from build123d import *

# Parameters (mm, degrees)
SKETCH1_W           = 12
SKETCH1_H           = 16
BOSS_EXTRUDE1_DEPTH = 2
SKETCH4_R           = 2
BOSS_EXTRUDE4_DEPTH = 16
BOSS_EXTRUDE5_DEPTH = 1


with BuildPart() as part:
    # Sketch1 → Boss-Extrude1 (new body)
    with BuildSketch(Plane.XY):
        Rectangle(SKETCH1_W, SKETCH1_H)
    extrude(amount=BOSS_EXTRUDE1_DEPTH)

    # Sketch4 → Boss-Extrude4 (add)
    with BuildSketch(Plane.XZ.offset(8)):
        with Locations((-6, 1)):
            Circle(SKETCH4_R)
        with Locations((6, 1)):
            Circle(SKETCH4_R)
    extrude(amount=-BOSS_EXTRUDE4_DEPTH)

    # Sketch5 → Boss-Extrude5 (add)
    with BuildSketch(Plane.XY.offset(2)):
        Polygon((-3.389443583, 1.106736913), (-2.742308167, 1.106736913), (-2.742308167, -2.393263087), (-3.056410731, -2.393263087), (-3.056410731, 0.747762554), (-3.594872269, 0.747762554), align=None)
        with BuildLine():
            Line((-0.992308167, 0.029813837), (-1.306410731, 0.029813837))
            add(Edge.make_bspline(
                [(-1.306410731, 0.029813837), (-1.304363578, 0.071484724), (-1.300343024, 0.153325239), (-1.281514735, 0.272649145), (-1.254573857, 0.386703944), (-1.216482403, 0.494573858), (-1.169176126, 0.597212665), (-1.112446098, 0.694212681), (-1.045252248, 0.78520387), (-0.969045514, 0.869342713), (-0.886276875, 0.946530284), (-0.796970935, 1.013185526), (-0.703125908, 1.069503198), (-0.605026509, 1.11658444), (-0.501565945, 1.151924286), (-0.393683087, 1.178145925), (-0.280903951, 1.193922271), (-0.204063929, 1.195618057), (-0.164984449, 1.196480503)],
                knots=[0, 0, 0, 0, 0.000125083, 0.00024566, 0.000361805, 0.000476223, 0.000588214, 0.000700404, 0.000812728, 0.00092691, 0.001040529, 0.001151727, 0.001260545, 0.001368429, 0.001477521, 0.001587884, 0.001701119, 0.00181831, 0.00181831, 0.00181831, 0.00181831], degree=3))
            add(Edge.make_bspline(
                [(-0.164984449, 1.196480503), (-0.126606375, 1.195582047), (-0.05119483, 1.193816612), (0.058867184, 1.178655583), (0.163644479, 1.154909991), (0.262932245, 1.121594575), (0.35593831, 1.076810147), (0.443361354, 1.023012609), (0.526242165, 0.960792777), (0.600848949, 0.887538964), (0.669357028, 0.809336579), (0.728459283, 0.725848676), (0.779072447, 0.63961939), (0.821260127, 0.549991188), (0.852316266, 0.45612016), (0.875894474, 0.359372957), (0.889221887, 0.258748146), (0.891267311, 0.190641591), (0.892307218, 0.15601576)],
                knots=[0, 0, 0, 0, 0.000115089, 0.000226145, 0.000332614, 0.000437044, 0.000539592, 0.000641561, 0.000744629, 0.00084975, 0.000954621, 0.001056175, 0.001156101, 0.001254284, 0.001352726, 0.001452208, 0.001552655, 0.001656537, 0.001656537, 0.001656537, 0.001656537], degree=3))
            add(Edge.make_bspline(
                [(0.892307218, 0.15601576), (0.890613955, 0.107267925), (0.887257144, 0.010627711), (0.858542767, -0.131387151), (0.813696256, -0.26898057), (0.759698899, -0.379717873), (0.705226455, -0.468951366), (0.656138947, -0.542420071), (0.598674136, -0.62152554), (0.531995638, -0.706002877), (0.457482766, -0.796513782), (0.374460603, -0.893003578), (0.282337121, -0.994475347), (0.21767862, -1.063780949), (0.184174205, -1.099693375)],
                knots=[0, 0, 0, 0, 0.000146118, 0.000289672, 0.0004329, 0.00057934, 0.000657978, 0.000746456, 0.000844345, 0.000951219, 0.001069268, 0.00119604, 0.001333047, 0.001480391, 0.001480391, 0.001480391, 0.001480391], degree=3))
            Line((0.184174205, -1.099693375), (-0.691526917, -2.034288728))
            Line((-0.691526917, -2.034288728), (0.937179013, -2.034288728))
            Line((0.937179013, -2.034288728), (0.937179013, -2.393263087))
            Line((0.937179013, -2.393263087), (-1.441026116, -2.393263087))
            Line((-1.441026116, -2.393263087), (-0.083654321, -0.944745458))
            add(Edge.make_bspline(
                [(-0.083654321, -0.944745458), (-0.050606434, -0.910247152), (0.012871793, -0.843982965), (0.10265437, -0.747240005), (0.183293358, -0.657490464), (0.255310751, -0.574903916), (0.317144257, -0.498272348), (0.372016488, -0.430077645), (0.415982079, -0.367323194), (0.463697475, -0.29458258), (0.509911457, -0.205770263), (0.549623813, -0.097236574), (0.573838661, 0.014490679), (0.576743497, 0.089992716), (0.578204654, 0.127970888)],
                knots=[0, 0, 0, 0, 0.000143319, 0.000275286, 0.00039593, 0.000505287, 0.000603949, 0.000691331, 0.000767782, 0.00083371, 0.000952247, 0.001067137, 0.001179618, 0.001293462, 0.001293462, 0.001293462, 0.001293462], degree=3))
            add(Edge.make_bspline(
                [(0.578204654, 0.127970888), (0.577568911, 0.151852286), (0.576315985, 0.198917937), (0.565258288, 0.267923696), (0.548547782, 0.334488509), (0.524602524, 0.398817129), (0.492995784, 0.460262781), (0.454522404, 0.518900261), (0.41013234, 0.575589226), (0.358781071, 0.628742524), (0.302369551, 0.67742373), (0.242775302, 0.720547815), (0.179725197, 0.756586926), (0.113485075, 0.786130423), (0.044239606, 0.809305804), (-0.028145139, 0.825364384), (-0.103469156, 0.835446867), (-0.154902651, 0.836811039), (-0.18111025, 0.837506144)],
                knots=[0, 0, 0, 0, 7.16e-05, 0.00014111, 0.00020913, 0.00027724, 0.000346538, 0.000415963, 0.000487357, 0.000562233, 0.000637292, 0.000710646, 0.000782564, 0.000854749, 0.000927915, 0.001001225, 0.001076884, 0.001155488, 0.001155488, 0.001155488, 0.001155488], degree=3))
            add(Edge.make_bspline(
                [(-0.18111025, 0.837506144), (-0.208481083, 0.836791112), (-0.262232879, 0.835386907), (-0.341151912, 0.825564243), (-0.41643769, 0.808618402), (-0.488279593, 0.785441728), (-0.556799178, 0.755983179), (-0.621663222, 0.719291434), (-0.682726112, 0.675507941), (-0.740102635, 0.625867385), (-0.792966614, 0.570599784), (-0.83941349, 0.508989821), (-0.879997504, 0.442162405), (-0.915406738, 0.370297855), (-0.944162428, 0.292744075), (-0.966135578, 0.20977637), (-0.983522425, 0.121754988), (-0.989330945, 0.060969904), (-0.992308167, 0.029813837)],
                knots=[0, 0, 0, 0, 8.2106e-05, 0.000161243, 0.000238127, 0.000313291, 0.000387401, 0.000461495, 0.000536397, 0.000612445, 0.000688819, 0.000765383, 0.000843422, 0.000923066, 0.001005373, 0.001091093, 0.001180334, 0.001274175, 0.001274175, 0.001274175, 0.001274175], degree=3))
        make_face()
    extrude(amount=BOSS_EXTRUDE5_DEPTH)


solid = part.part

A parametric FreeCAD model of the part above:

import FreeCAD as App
import Part
import Sketcher

V = App.Vector
Q = App.Units.Quantity

doc = App.newDocument("Part")
params = doc.addObject("Spreadsheet::Sheet", "Params")
for row, (alias, value) in enumerate([
    ("sketch1_width", "12 mm"),
    ("sketch1_height", "16 mm"),
    ("pad1_length", "2 mm"),
    ("sketch2_diameter", "4 mm"),
    ("pad2_length", "16 mm"),
    ("sketch3_height", "3.5 mm"),
    ("pad3_length", "1 mm"),
], start=1):
    params.set(f"A{row}", alias)
    params.set(f"B{row}", "=" + value)
    params.setAlias(f"B{row}", alias)

body = doc.addObject("PartDesign::Body", "Body")

# Sketch on XY plane
sketch1 = body.newObject("Sketcher::SketchObject", "Sketch")
sketch1.AttachmentSupport = (doc.getObject("XY_Plane"), [""])
sketch1.MapMode = "FlatFace"
sketch1.addGeometry(Part.LineSegment(V(-6, 8, 0), V(-6, -8, 0)), False)
sketch1.addGeometry(Part.LineSegment(V(-6, -8, 0), V(6, -8, 0)), False)
sketch1.addGeometry(Part.LineSegment(V(6, -8, 0), V(6, 8, 0)), False)
sketch1.addGeometry(Part.LineSegment(V(6, 8, 0), V(-6, 8, 0)), False)
sketch1.addConstraint(Sketcher.Constraint("Coincident", 0, 2, 1, 1))
sketch1.addConstraint(Sketcher.Constraint("Coincident", 1, 2, 2, 1))
sketch1.addConstraint(Sketcher.Constraint("Coincident", 2, 2, 3, 1))
sketch1.addConstraint(Sketcher.Constraint("Coincident", 3, 2, 0, 1))
sketch1.addConstraint(Sketcher.Constraint("Vertical", 0))
sketch1.addConstraint(Sketcher.Constraint("Horizontal", 1))
sketch1.addConstraint(Sketcher.Constraint("Vertical", 2))
sketch1.addConstraint(Sketcher.Constraint("Horizontal", 3))
sketch1.addConstraint(Sketcher.Constraint("Symmetric", 0, 2, 2, 2, -1, 1))
sketch1.addConstraint(Sketcher.Constraint("DistanceX", 1, 1, 1, 2, Q("12 mm")))
sketch1.addConstraint(Sketcher.Constraint("DistanceY", 0, 2, 0, 1, Q("16 mm")))
sketch1.setExpression("Constraints[9]", "Params.sketch1_width")
sketch1.setExpression("Constraints[10]", "Params.sketch1_height")
pad1 = body.newObject("PartDesign::Pad", "Pad")
pad1.Profile = sketch1
pad1.setExpression("Length", "Params.pad1_length")

# Sketch on XZ plane
sketch2 = body.newObject("Sketcher::SketchObject", "Sketch001")
sketch2.AttachmentSupport = (doc.getObject("XZ_Plane"), [""])
sketch2.MapMode = "FlatFace"
sketch2.AttachmentOffset = App.Placement(V(0, 0, 8), App.Rotation())
sketch2.addGeometry(Part.Circle(V(-6, 1, 0), V(0, 0, 1), 2), False)
sketch2.addGeometry(Part.Circle(V(6, 1, 0), V(0, 0, 1), 2), False)
sketch2.addConstraint(Sketcher.Constraint("Equal", 0, 1))
sketch2.addConstraint(Sketcher.Constraint("Symmetric", 0, 3, 1, 3, -2))
sketch2.addConstraint(Sketcher.Constraint("Diameter", 0, Q("4 mm")))
sketch2.addConstraint(Sketcher.Constraint("DistanceX", 0, 3, -1, 1, Q("6 mm")))
sketch2.addConstraint(Sketcher.Constraint("DistanceY", -1, 1, 0, 3, Q("1 mm")))
sketch2.setExpression("Constraints[2]", "Params.sketch2_diameter")
pad2 = body.newObject("PartDesign::Pad", "Pad001")
pad2.Profile = sketch2
pad2.setExpression("Length", "Params.pad2_length")
pad2.Reversed = True

# Sketch on XY plane
sketch3 = body.newObject("Sketcher::SketchObject", "Sketch002")
sketch3.AttachmentSupport = (doc.getObject("XY_Plane"), [""])
sketch3.MapMode = "FlatFace"
sketch3.AttachmentOffset = App.Placement(V(0, 0, 2), App.Rotation())
sketch3.addGeometry(Part.LineSegment(V(-2.742308, 1.106737, 0), V(-3.389444, 1.106737, 0)), False)
sketch3.addGeometry(Part.LineSegment(V(-3.389444, 1.106737, 0), V(-3.594872, 0.747763, 0)), False)
sketch3.addGeometry(Part.LineSegment(V(-3.594872, 0.747763, 0), V(-3.056411, 0.747763, 0)), False)
sketch3.addGeometry(Part.LineSegment(V(-3.056411, 0.747763, 0), V(-3.056411, -2.393263, 0)), False)
sketch3.addGeometry(Part.LineSegment(V(-3.056411, -2.393263, 0), V(-2.742308, -2.393263, 0)), False)
sketch3.addGeometry(Part.LineSegment(V(-2.742308, -2.393263, 0), V(-2.742308, 1.106737, 0)), False)
sketch3.addGeometry(Part.LineSegment(V(-1.306411, 0.029814, 0), V(-0.992308, 0.029814, 0)), False)
sketch3.addGeometry(Part.BSplineCurve([V(-0.18111, 0.837506, 0), V(-0.208481, 0.836791, 0), V(-0.262233, 0.835387, 0), V(-0.341152, 0.825564, 0), V(-0.416438, 0.808618, 0), V(-0.48828, 0.785442, 0), V(-0.556799, 0.755983, 0), V(-0.621663, 0.719291, 0), V(-0.682726, 0.675508, 0), V(-0.740103, 0.625867, 0), V(-0.792967, 0.5706, 0), V(-0.839413, 0.50899, 0), V(-0.879998, 0.442162, 0), V(-0.915407, 0.370298, 0), V(-0.944162, 0.292744, 0), V(-0.966136, 0.209776, 0), V(-0.983522, 0.121755, 0), V(-0.989331, 0.06097, 0), V(-0.992308, 0.029814, 0)], [4, 1, 1, 1, 1, 1, 1, 1, 1, 1, 1, 1, 1, 1, 1, 1, 4], [0, 0.000082106, 0.000161243, 0.000238127, 0.000313291, 0.000387401, 0.000461495, 0.000536397, 0.000612445, 0.000688819, 0.000765383, 0.000843422, 0.000923066, 0.001005373, 0.001091093, 0.001180334, 0.001274175], False, 3, [1, 1, 1, 1, 1, 1, 1, 1, 1, 1, 1, 1, 1, 1, 1, 1, 1, 1, 1], False), False)
sketch3.addGeometry(Part.BSplineCurve([V(0.578205, 0.127971, 0), V(0.577569, 0.151852, 0), V(0.576316, 0.198918, 0), V(0.565258, 0.267924, 0), V(0.548548, 0.334489, 0), V(0.524603, 0.398817, 0), V(0.492996, 0.460263, 0), V(0.454522, 0.5189, 0), V(0.410132, 0.575589, 0), V(0.358781, 0.628743, 0), V(0.30237, 0.677424, 0), V(0.242775, 0.720548, 0), V(0.179725, 0.756587, 0), V(0.113485, 0.78613, 0), V(0.04424, 0.809306, 0), V(-0.028145, 0.825364, 0), V(-0.103469, 0.835447, 0), V(-0.154903, 0.836811, 0), V(-0.18111, 0.837506, 0)], [4, 1, 1, 1, 1, 1, 1, 1, 1, 1, 1, 1, 1, 1, 1, 1, 4], [0, 0.0000716, 0.00014111, 0.00020913, 0.00027724, 0.000346538, 0.000415963, 0.000487357, 0.000562233, 0.000637292, 0.000710646, 0.000782564, 0.000854749, 0.000927915, 0.001001225, 0.001076884, 0.001155488], False, 3, [1, 1, 1, 1, 1, 1, 1, 1, 1, 1, 1, 1, 1, 1, 1, 1, 1, 1, 1], False), False)
sketch3.addGeometry(Part.BSplineCurve([V(-0.083654, -0.944745, 0), V(-0.050606, -0.910247, 0), V(0.012872, -0.843983, 0), V(0.102654, -0.74724, 0), V(0.183293, -0.65749, 0), V(0.255311, -0.574904, 0), V(0.317144, -0.498272, 0), V(0.372016, -0.430078, 0), V(0.415982, -0.367323, 0), V(0.463697, -0.294583, 0), V(0.509911, -0.20577, 0), V(0.549624, -0.097237, 0), V(0.573839, 0.014491, 0), V(0.576743, 0.089993, 0), V(0.578205, 0.127971, 0)], [4, 1, 1, 1, 1, 1, 1, 1, 1, 1, 1, 1, 4], [0, 0.000143319, 0.000275286, 0.00039593, 0.000505287, 0.000603949, 0.000691331, 0.000767782, 0.00083371, 0.000952247, 0.001067137, 0.001179618, 0.001293462], False, 3, [1, 1, 1, 1, 1, 1, 1, 1, 1, 1, 1, 1, 1, 1, 1], False), False)
sketch3.addGeometry(Part.LineSegment(V(-0.083654, -0.944745, 0), V(-1.441026, -2.393263, 0)), False)
sketch3.addGeometry(Part.LineSegment(V(-1.441026, -2.393263, 0), V(0.937179, -2.393263, 0)), False)
sketch3.addGeometry(Part.LineSegment(V(0.937179, -2.393263, 0), V(0.937179, -2.034289, 0)), False)
sketch3.addGeometry(Part.LineSegment(V(0.937179, -2.034289, 0), V(-0.691527, -2.034289, 0)), False)
sketch3.addGeometry(Part.LineSegment(V(-0.691527, -2.034289, 0), V(0.184174, -1.099693, 0)), False)
sketch3.addGeometry(Part.BSplineCurve([V(0.892307, 0.156016, 0), V(0.890614, 0.107268, 0), V(0.887257, 0.010628, 0), V(0.858543, -0.131387, 0), V(0.813696, -0.268981, 0), V(0.759699, -0.379718, 0), V(0.705226, -0.468951, 0), V(0.656139, -0.54242, 0), V(0.598674, -0.621526, 0), V(0.531996, -0.706003, 0), V(0.457483, -0.796514, 0), V(0.374461, -0.893004, 0), V(0.282337, -0.994475, 0), V(0.217679, -1.063781, 0), V(0.184174, -1.099693, 0)], [4, 1, 1, 1, 1, 1, 1, 1, 1, 1, 1, 1, 4], [0, 0.000146118, 0.000289672, 0.0004329, 0.00057934, 0.000657978, 0.000746456, 0.000844345, 0.000951219, 0.001069268, 0.00119604, 0.001333047, 0.001480391], False, 3, [1, 1, 1, 1, 1, 1, 1, 1, 1, 1, 1, 1, 1, 1, 1], False), False)
sketch3.addGeometry(Part.BSplineCurve([V(-0.164984, 1.196481, 0), V(-0.126606, 1.195582, 0), V(-0.051195, 1.193817, 0), V(0.058867, 1.178656, 0), V(0.163644, 1.15491, 0), V(0.262932, 1.121595, 0), V(0.355938, 1.07681, 0), V(0.443361, 1.023013, 0), V(0.526242, 0.960793, 0), V(0.600849, 0.887539, 0), V(0.669357, 0.809337, 0), V(0.728459, 0.725849, 0), V(0.779072, 0.639619, 0), V(0.82126, 0.549991, 0), V(0.852316, 0.45612, 0), V(0.875894, 0.359373, 0), V(0.889222, 0.258748, 0), V(0.891267, 0.190642, 0), V(0.892307, 0.156016, 0)], [4, 1, 1, 1, 1, 1, 1, 1, 1, 1, 1, 1, 1, 1, 1, 1, 4], [0, 0.000115089, 0.000226145, 0.000332614, 0.000437044, 0.000539592, 0.000641561, 0.000744629, 0.00084975, 0.000954621, 0.001056175, 0.001156101, 0.001254284, 0.001352726, 0.001452208, 0.001552655, 0.001656537], False, 3, [1, 1, 1, 1, 1, 1, 1, 1, 1, 1, 1, 1, 1, 1, 1, 1, 1, 1, 1], False), False)
sketch3.addGeometry(Part.BSplineCurve([V(-1.306411, 0.029814, 0), V(-1.304364, 0.071485, 0), V(-1.300343, 0.153325, 0), V(-1.281515, 0.272649, 0), V(-1.254574, 0.386704, 0), V(-1.216482, 0.494574, 0), V(-1.169176, 0.597213, 0), V(-1.112446, 0.694213, 0), V(-1.045252, 0.785204, 0), V(-0.969046, 0.869343, 0), V(-0.886277, 0.94653, 0), V(-0.796971, 1.013186, 0), V(-0.703126, 1.069503, 0), V(-0.605027, 1.116584, 0), V(-0.501566, 1.151924, 0), V(-0.393683, 1.178146, 0), V(-0.280904, 1.193922, 0), V(-0.204064, 1.195618, 0), V(-0.164984, 1.196481, 0)], [4, 1, 1, 1, 1, 1, 1, 1, 1, 1, 1, 1, 1, 1, 1, 1, 4], [0, 0.000125083, 0.00024566, 0.000361805, 0.000476223, 0.000588214, 0.000700404, 0.000812728, 0.00092691, 0.001040529, 0.001151727, 0.001260545, 0.001368429, 0.001477521, 0.001587884, 0.001701119, 0.00181831], False, 3, [1, 1, 1, 1, 1, 1, 1, 1, 1, 1, 1, 1, 1, 1, 1, 1, 1, 1, 1], False), False)
sketch3.addConstraint(Sketcher.Constraint("Block", 7))
sketch3.addConstraint(Sketcher.Constraint("Block", 8))
sketch3.addConstraint(Sketcher.Constraint("Block", 9))
sketch3.addConstraint(Sketcher.Constraint("Block", 15))
sketch3.addConstraint(Sketcher.Constraint("Block", 16))
sketch3.addConstraint(Sketcher.Constraint("Block", 17))
sketch3.addConstraint(Sketcher.Constraint("Coincident", 0, 2, 1, 1))
sketch3.addConstraint(Sketcher.Constraint("Coincident", 1, 2, 2, 1))
sketch3.addConstraint(Sketcher.Constraint("Coincident", 2, 2, 3, 1))
sketch3.addConstraint(Sketcher.Constraint("Coincident", 3, 2, 4, 1))
sketch3.addConstraint(Sketcher.Constraint("Coincident", 4, 2, 5, 1))
sketch3.addConstraint(Sketcher.Constraint("Coincident", 5, 2, 0, 1))
sketch3.addConstraint(Sketcher.Constraint("Coincident", 6, 2, 7, 2))
sketch3.addConstraint(Sketcher.Constraint("Coincident", 9, 1, 10, 1))
sketch3.addConstraint(Sketcher.Constraint("Coincident", 10, 2, 11, 1))
sketch3.addConstraint(Sketcher.Constraint("Coincident", 11, 2, 12, 1))
sketch3.addConstraint(Sketcher.Constraint("Coincident", 12, 2, 13, 1))
sketch3.addConstraint(Sketcher.Constraint("Coincident", 13, 2, 14, 1))
sketch3.addConstraint(Sketcher.Constraint("Coincident", 14, 2, 15, 2))
sketch3.addConstraint(Sketcher.Constraint("Coincident", 17, 1, 6, 1))
sketch3.addConstraint(Sketcher.Constraint("Horizontal", 0))
sketch3.addConstraint(Sketcher.Constraint("Horizontal", 2))
sketch3.addConstraint(Sketcher.Constraint("Vertical", 3))
sketch3.addConstraint(Sketcher.Constraint("Horizontal", 4))
sketch3.addConstraint(Sketcher.Constraint("Vertical", 5))
sketch3.addConstraint(Sketcher.Constraint("Horizontal", 11))
sketch3.addConstraint(Sketcher.Constraint("Vertical", 12))
sketch3.addConstraint(Sketcher.Constraint("Horizontal", 13))
sketch3.addConstraint(Sketcher.Constraint("DistanceY", 5, 1, 5, 2, Q("3.5 mm")))
sketch3.addConstraint(Sketcher.Constraint("DistanceY", 10, 2, 5, 2, Q("3.5 mm")))
sketch3.addConstraint(Sketcher.Constraint("DistanceX", 5, 2, 6, 2, Q("1.75 mm")))
sketch3.addConstraint(Sketcher.Constraint("Distance", 1, Q("0.413598 mm")))
sketch3.addConstraint(Sketcher.Constraint("DistanceX", 2, 1, 2, 2, Q("0.538462 mm")))
sketch3.addConstraint(Sketcher.Constraint("DistanceX", 10, 2, 13, 2, Q("0.749499 mm")))
sketch3.addConstraint(Sketcher.Constraint("DistanceX", 13, 2, 14, 2, Q("0.875701 mm")))
sketch3.addConstraint(Sketcher.Constraint("Distance", 10, Q("1.98511 mm")))
sketch3.addConstraint(Sketcher.Constraint("Distance", 14, Q("1.28075 mm")))
sketch3.addConstraint(Sketcher.Constraint("DistanceX", 0, 2, 0, 1, Q("0.647135 mm")))
sketch3.addConstraint(Sketcher.Constraint("DistanceX", 4, 1, 4, 2, Q("0.314103 mm")))
sketch3.addConstraint(Sketcher.Constraint("DistanceX", 11, 1, 11, 2, Q("2.378205 mm")))
sketch3.setExpression("Constraints[28]", "Params.sketch3_height")
pad3 = body.newObject("PartDesign::Pad", "Pad002")
pad3.Profile = sketch3
pad3.setExpression("Length", "Params.pad3_length")

doc.recompute()
